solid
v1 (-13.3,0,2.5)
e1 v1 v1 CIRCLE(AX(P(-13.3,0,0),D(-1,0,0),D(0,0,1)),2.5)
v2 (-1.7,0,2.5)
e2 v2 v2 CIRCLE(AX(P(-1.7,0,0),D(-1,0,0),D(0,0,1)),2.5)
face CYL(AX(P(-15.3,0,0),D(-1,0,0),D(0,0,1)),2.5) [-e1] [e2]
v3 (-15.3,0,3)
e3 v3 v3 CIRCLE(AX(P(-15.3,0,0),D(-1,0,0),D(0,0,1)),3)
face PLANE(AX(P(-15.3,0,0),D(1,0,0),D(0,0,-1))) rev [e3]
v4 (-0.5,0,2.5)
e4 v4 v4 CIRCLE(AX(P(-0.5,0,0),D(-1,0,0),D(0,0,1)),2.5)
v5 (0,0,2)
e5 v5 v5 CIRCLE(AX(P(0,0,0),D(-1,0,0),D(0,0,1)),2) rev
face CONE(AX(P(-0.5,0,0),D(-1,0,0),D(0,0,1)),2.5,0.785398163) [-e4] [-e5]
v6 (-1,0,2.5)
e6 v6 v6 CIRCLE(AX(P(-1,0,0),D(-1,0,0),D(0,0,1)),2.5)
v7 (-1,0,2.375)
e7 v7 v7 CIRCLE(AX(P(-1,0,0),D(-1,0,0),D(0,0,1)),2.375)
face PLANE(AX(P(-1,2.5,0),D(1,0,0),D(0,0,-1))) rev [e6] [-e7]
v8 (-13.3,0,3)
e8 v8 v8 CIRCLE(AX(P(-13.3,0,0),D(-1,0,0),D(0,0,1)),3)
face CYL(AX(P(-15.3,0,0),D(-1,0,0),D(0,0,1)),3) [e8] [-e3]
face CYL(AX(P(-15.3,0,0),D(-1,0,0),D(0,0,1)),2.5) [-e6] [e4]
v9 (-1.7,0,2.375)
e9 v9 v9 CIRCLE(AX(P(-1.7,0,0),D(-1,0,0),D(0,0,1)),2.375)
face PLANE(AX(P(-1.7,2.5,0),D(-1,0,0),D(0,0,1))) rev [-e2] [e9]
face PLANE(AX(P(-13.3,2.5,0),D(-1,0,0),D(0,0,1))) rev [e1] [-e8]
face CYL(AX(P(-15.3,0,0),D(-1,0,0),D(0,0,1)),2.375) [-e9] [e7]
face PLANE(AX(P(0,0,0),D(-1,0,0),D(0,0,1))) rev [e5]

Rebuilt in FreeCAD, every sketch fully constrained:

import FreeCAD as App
import Part
import Sketcher
from FreeCAD import Vector


def edges_at(feature, points):
    """Names of the edges that pass closest to the given points."""
    edges = feature.Shape.Edges
    near = lambda p: min(range(len(edges)), key=lambda i: edges[i].distToShape(Part.Vertex(*p))[0])
    return sorted({f"Edge{near(p) + 1}" for p in points})

doc = App.newDocument("Part")
body = doc.addObject("PartDesign::Body", "Body")

sketch1 = doc.addObject("Sketcher::SketchObject", "Sketch")
body.addObject(sketch1)
sketch1.AttachmentSupport = (doc.XY_Plane, [""])
sketch1.MapMode = "FlatFace"
sketch1.addGeometry(Part.LineSegment(Vector(-15.3, 0, 0), Vector(0, 0, 0)), False)
sketch1.addGeometry(Part.LineSegment(Vector(0, 0, 0), Vector(0, 2.5, 0)), False)
sketch1.addGeometry(Part.LineSegment(Vector(0, 2.5, 0), Vector(-1, 2.5, 0)), False)
sketch1.addGeometry(Part.LineSegment(Vector(-1, 2.5, 0), Vector(-1, 2.38, 0)), False)
sketch1.addGeometry(Part.LineSegment(Vector(-1, 2.38, 0), Vector(-1.7, 2.38, 0)), False)
sketch1.addGeometry(Part.LineSegment(Vector(-1.7, 2.38, 0), Vector(-1.7, 2.5, 0)), False)
sketch1.addGeometry(Part.LineSegment(Vector(-1.7, 2.5, 0), Vector(-13.3, 2.5, 0)), False)
sketch1.addGeometry(Part.LineSegment(Vector(-13.3, 2.5, 0), Vector(-13.3, 3, 0)), False)
sketch1.addGeometry(Part.LineSegment(Vector(-13.3, 3, 0), Vector(-15.3, 3, 0)), False)
sketch1.addGeometry(Part.LineSegment(Vector(-15.3, 3, 0), Vector(-15.3, 0, 0)), False)
sketch1.addConstraint(Sketcher.Constraint("Coincident", 0, 2, 1, 1))
sketch1.addConstraint(Sketcher.Constraint("Coincident", 1, 2, 2, 1))
sketch1.addConstraint(Sketcher.Constraint("Coincident", 2, 2, 3, 1))
sketch1.addConstraint(Sketcher.Constraint("Coincident", 3, 2, 4, 1))
sketch1.addConstraint(Sketcher.Constraint("Coincident", 4, 2, 5, 1))
sketch1.addConstraint(Sketcher.Constraint("Coincident", 5, 2, 6, 1))
sketch1.addConstraint(Sketcher.Constraint("Coincident", 6, 2, 7, 1))
sketch1.addConstraint(Sketcher.Constraint("Coincident", 7, 2, 8, 1))
sketch1.addConstraint(Sketcher.Constraint("Coincident", 8, 2, 9, 1))
sketch1.addConstraint(Sketcher.Constraint("Coincident", 9, 2, 0, 1))
sketch1.addConstraint(Sketcher.Constraint("Horizontal", 0))
sketch1.addConstraint(Sketcher.Constraint("Vertical", 1))
sketch1.addConstraint(Sketcher.Constraint("Horizontal", 2))
sketch1.addConstraint(Sketcher.Constraint("Vertical", 3))
sketch1.addConstraint(Sketcher.Constraint("Horizontal", 4))
sketch1.addConstraint(Sketcher.Constraint("Vertical", 5))
sketch1.addConstraint(Sketcher.Constraint("Horizontal", 6))
sketch1.addConstraint(Sketcher.Constraint("Vertical", 7))
sketch1.addConstraint(Sketcher.Constraint("Horizontal", 8))
sketch1.addConstraint(Sketcher.Constraint("Vertical", 9))
sketch1.addConstraint(Sketcher.Constraint("Coincident", 0, 2, -1, 1))
sketch1.addConstraint(Sketcher.Constraint("Horizontal", 2, 2, 5, 2))
sketch1.addConstraint(Sketcher.Constraint("DistanceX", 2, 2, 2, 1, 1.0))
sketch1.addConstraint(Sketcher.Constraint("DistanceX", 8, 2, 8, 1, 2.0))
sketch1.addConstraint(Sketcher.Constraint("DistanceY", 9, 2, 9, 1, 3.0))
sketch1.addConstraint(Sketcher.Constraint("DistanceX", 0, 1, 0, 2, 15.3))
sketch1.addConstraint(Sketcher.Constraint("DistanceX", 4, 2, 4, 1, 0.7))
sketch1.addConstraint(Sketcher.Constraint("DistanceY", 1, 1, 1, 2, 2.5))
sketch1.addConstraint(Sketcher.Constraint("DistanceY", 3, 2, 3, 1, 0.125))
revolution = doc.addObject("PartDesign::Revolution", "Revolution")
body.addObject(revolution)
revolution.Profile = sketch1
revolution.ReferenceAxis = (sketch1, ["H_Axis"])
revolution.Angle = 360
doc.recompute()

chamfer = doc.addObject("PartDesign::Chamfer", "Chamfer")
body.addObject(chamfer)
chamfer.Base = (revolution, edges_at(revolution, [(0, 0, -2.5)]))
chamfer.Size = 0.5

doc.recompute()
